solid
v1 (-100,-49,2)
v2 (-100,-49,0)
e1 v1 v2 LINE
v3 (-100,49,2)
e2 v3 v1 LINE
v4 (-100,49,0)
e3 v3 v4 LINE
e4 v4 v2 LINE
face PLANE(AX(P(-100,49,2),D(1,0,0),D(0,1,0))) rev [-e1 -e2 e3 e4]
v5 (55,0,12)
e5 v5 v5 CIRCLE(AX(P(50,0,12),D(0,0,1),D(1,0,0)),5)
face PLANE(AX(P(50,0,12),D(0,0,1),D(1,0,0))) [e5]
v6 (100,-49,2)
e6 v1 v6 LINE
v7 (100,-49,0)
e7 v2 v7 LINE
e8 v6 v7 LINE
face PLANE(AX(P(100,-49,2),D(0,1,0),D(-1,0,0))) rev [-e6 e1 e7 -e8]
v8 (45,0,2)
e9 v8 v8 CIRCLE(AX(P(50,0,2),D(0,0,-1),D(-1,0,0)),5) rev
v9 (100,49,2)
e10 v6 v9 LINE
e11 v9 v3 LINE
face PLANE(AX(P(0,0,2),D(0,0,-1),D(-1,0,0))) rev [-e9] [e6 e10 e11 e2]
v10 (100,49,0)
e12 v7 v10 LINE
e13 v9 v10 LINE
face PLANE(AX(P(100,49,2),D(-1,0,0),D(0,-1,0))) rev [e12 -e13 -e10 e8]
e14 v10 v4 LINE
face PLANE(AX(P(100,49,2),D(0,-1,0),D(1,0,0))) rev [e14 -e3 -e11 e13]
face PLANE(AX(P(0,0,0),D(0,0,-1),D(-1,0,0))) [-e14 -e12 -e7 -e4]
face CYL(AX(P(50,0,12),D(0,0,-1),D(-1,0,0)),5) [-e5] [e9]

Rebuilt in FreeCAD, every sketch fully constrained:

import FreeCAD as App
import Part
import Sketcher
from FreeCAD import Vector

doc = App.newDocument("Part")
body = doc.addObject("PartDesign::Body", "Body")

# Sketch on XY plane
sketch1 = body.newObject("Sketcher::SketchObject", "Sketch")
sketch1.AttachmentSupport = (doc.getObject("XY_Plane"), [""])
sketch1.MapMode = "FlatFace"
sketch1.addGeometry([
    Part.LineSegment(Vector(-100, 49, 0), Vector(-100, -49, 0)),
    Part.LineSegment(Vector(-100, -49, 0), Vector(100, -49, 0)),
    Part.LineSegment(Vector(100, -49, 0), Vector(100, 49, 0)),
    Part.LineSegment(Vector(100, 49, 0), Vector(-100, 49, 0)),
], False)
sketch1.addConstraint([
    Sketcher.Constraint("Coincident", 0, 2, 1, 1),
    Sketcher.Constraint("Coincident", 1, 2, 2, 1),
    Sketcher.Constraint("Coincident", 2, 2, 3, 1),
    Sketcher.Constraint("Coincident", 3, 2, 0, 1),
    Sketcher.Constraint("Vertical", 0),
    Sketcher.Constraint("Horizontal", 1),
    Sketcher.Constraint("Vertical", 2),
    Sketcher.Constraint("Horizontal", 3),
    Sketcher.Constraint("Symmetric", 0, 2, 2, 2, -1, 1),
    Sketcher.Constraint("DistanceX", 1, 1, 1, 2, 200.0),
    Sketcher.Constraint("DistanceY", 0, 2, 0, 1, 98.0),
])
pad1 = body.newObject("PartDesign::Pad", "Pad")
pad1.Profile = sketch1
pad1.Length = 2

# Sketch on XY plane
sketch2 = body.newObject("Sketcher::SketchObject", "Sketch001")
sketch2.AttachmentSupport = (doc.getObject("XY_Plane"), [""])
sketch2.MapMode = "FlatFace"
sketch2.AttachmentOffset = App.Placement(Vector(0, 0, 2), App.Rotation())
sketch2.addGeometry(Part.Circle(Vector(50, 0, 0), Vector(0, 0, 1), 5), False)
sketch2.addConstraint([
    Sketcher.Constraint("PointOnObject", 0, 3, -1),
    Sketcher.Constraint("Diameter", 0, 10.0),
    Sketcher.Constraint("DistanceX", -1, 1, 0, 3, 50.0),
])
pad2 = body.newObject("PartDesign::Pad", "Pad001")
pad2.Profile = sketch2
pad2.Length = 10

doc.recompute()
